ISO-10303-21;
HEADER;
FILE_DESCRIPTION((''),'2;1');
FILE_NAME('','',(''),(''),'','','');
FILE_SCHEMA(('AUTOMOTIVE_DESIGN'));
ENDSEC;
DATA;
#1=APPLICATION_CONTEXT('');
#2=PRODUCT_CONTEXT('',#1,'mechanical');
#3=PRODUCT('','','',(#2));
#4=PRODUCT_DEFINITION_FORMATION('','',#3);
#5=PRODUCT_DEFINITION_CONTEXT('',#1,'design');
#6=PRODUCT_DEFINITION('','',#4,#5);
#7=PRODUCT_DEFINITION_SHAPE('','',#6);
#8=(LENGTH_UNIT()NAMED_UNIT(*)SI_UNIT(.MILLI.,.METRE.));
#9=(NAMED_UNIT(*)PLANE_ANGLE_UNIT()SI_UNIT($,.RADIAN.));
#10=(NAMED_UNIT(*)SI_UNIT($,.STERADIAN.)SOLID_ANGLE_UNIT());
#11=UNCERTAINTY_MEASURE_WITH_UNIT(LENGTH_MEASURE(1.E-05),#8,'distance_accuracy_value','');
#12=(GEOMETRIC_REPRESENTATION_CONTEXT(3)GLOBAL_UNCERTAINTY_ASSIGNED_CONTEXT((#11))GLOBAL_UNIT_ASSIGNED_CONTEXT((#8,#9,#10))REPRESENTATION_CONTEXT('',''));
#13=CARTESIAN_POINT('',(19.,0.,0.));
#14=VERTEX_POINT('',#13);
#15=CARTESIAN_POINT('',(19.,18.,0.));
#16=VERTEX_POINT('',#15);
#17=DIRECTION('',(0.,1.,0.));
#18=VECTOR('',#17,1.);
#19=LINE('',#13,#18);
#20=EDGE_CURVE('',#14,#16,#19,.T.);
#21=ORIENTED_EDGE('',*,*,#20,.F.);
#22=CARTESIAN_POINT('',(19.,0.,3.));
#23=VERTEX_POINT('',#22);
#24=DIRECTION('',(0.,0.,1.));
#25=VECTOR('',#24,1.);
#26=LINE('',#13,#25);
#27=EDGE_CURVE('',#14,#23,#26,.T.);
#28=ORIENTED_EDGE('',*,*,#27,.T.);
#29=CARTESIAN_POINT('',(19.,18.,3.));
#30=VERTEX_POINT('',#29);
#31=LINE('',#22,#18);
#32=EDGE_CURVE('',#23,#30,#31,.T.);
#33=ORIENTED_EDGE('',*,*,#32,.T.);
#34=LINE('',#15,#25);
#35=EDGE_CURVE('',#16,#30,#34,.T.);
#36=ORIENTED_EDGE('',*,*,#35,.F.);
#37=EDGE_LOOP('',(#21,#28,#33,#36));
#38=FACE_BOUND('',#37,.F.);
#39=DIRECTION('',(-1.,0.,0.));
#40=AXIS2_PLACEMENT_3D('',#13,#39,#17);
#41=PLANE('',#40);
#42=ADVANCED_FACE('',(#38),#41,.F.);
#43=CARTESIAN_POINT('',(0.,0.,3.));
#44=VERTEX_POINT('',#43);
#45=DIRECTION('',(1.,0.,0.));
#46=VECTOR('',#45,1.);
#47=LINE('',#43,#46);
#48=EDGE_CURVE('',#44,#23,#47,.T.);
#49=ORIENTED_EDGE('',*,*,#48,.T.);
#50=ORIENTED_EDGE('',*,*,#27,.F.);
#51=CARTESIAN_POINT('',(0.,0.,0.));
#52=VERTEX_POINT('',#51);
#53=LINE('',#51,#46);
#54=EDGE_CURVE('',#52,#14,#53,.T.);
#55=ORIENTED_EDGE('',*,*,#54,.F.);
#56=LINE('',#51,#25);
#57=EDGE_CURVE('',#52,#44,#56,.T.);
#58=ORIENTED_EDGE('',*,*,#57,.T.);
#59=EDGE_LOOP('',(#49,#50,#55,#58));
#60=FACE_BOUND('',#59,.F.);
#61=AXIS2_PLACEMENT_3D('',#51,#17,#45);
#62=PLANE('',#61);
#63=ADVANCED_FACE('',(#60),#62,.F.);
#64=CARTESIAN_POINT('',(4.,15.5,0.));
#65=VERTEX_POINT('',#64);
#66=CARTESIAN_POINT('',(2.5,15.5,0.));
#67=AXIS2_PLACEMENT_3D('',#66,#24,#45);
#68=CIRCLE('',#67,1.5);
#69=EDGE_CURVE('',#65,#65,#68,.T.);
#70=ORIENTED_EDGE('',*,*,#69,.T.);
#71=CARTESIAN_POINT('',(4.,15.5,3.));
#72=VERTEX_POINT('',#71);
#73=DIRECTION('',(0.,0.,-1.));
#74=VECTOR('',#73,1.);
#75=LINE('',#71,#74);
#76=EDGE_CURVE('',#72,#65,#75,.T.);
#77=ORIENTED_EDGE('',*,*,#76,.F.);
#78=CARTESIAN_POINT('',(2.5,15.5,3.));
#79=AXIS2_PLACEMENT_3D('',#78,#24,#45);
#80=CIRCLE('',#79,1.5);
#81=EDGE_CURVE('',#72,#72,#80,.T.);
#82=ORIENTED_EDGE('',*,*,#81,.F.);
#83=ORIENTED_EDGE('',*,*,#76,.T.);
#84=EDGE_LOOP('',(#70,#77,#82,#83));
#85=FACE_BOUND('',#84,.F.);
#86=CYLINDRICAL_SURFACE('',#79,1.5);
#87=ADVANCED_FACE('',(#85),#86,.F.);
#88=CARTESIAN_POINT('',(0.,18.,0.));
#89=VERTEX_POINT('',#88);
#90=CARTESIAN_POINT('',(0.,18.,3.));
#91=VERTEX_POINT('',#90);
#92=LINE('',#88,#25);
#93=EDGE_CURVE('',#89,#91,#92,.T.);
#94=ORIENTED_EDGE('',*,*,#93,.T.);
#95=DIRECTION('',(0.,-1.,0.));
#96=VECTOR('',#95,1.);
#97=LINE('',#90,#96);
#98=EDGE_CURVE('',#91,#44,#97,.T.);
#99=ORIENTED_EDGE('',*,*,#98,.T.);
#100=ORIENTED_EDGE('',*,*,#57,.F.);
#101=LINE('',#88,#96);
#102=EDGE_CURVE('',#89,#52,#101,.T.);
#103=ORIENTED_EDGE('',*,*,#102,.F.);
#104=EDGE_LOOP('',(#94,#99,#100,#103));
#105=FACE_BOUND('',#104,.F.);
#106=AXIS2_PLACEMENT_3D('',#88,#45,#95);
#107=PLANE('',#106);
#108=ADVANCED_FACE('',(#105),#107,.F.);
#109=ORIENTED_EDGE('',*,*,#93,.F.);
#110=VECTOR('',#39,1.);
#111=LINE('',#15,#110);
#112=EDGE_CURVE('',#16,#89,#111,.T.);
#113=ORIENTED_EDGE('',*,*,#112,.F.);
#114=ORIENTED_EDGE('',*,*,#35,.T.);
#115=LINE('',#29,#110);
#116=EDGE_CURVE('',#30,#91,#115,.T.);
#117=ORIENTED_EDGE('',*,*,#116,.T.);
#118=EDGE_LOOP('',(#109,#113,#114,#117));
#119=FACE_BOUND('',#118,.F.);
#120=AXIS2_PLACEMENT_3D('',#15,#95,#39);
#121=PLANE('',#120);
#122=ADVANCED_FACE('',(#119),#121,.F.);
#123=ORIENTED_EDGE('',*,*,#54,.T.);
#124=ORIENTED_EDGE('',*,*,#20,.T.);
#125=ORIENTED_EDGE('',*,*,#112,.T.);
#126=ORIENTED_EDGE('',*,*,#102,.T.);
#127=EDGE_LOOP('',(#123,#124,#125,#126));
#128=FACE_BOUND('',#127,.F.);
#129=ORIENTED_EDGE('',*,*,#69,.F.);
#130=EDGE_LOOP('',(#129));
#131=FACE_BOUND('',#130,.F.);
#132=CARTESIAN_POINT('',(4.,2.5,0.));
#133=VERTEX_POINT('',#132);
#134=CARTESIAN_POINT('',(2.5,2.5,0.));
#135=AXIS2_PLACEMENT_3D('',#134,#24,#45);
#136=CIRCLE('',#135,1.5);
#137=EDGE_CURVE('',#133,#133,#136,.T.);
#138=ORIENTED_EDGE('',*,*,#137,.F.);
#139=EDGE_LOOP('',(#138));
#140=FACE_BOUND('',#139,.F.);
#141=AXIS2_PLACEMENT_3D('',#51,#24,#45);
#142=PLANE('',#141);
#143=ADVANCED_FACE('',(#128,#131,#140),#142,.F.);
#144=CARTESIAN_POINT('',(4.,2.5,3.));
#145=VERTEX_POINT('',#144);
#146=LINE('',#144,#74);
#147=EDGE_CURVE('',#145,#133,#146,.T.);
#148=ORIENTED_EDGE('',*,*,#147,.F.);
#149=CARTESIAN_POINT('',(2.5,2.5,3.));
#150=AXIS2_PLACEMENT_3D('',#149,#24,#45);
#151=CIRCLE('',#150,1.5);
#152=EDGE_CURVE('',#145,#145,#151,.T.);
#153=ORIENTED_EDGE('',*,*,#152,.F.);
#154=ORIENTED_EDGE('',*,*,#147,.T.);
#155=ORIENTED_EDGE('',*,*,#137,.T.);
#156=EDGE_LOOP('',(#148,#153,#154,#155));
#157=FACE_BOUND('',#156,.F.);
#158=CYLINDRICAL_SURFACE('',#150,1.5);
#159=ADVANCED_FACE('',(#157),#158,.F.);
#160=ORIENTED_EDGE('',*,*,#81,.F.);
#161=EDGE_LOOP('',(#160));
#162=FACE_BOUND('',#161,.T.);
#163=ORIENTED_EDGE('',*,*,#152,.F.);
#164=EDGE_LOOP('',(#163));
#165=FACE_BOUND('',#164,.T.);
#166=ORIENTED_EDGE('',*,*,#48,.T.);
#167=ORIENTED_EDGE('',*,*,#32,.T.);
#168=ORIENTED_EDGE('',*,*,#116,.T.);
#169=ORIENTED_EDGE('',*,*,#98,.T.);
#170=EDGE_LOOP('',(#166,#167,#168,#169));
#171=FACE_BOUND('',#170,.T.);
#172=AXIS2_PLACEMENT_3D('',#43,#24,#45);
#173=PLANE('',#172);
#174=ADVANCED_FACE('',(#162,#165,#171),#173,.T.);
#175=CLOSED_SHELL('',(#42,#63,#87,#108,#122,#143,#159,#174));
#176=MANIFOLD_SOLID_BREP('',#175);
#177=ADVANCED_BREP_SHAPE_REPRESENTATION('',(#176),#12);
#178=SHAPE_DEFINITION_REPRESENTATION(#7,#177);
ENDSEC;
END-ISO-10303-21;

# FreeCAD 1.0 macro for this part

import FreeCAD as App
import Part
import Sketcher
from FreeCAD import Vector
Q = App.Units.Quantity


def add_polygon(sketch, points):
    """Adds a closed chain of lines whose ends are joined by coincident constraints."""
    first, n = sketch.GeometryCount, len(points)
    for a, b in zip(points, points[1:] + points[:1]):
        sketch.addGeometry(Part.LineSegment(App.Vector(*a, 0), App.Vector(*b, 0)), False)
    for i in range(n):
        sketch.addConstraint(Sketcher.Constraint("Coincident", first + i, 2, first + (i + 1) % n, 1))

doc = App.newDocument("Part")
body = doc.addObject("PartDesign::Body", "Body")

# Sketch on XY plane
sketch1 = body.newObject("Sketcher::SketchObject", "Sketch")
sketch1.AttachmentSupport = (doc.getObject("XY_Plane"), [""])
sketch1.MapMode = "FlatFace"
add_polygon(sketch1, [(0, 18), (0, 0), (19, 0), (19, 18)])  # lines 0-3
sketch1.addConstraint([
    Sketcher.Constraint("Vertical", 0),
    Sketcher.Constraint("Horizontal", 1),
    Sketcher.Constraint("Vertical", 2),
    Sketcher.Constraint("Horizontal", 3),
    Sketcher.Constraint("Coincident", 0, 2, -1, 1),
    Sketcher.Constraint("DistanceX", 1, 1, 1, 2, Q("19 mm")),
    Sketcher.Constraint("DistanceY", 0, 2, 0, 1, Q("18 mm")),
])
pad1 = body.newObject("PartDesign::Pad", "Pad")
pad1.Profile = sketch1
pad1.Length = 3

# Sketch on XY plane
sketch2 = body.newObject("Sketcher::SketchObject", "Sketch001")
sketch2.AttachmentSupport = (doc.getObject("XY_Plane"), [""])
sketch2.MapMode = "FlatFace"
sketch2.AttachmentOffset = App.Placement(Vector(0, 0, 3), App.Rotation())
sketch2.addGeometry([
    Part.Circle(Vector(2.5, 2.5, 0), Vector(0, 0, 1), 1.5),
    Part.Circle(Vector(2.5, 15.5, 0), Vector(0, 0, 1), 1.5),
], False)
sketch2.addConstraint([
    Sketcher.Constraint("Equal", 0, 1),
    Sketcher.Constraint("Vertical", 0, 3, 1, 3),
    Sketcher.Constraint("Diameter", 0, Q("3 mm")),
    Sketcher.Constraint("DistanceY", 0, 3, 1, 3, Q("13 mm")),
    Sketcher.Constraint("DistanceX", -1, 1, 0, 3, Q("2.5 mm")),
    Sketcher.Constraint("DistanceY", -1, 1, 0, 3, Q("2.5 mm")),
])
pocket1 = body.newObject("PartDesign::Pocket", "Pocket")
pocket1.Profile = sketch2
pocket1.Type = "ThroughAll"

doc.recompute()
